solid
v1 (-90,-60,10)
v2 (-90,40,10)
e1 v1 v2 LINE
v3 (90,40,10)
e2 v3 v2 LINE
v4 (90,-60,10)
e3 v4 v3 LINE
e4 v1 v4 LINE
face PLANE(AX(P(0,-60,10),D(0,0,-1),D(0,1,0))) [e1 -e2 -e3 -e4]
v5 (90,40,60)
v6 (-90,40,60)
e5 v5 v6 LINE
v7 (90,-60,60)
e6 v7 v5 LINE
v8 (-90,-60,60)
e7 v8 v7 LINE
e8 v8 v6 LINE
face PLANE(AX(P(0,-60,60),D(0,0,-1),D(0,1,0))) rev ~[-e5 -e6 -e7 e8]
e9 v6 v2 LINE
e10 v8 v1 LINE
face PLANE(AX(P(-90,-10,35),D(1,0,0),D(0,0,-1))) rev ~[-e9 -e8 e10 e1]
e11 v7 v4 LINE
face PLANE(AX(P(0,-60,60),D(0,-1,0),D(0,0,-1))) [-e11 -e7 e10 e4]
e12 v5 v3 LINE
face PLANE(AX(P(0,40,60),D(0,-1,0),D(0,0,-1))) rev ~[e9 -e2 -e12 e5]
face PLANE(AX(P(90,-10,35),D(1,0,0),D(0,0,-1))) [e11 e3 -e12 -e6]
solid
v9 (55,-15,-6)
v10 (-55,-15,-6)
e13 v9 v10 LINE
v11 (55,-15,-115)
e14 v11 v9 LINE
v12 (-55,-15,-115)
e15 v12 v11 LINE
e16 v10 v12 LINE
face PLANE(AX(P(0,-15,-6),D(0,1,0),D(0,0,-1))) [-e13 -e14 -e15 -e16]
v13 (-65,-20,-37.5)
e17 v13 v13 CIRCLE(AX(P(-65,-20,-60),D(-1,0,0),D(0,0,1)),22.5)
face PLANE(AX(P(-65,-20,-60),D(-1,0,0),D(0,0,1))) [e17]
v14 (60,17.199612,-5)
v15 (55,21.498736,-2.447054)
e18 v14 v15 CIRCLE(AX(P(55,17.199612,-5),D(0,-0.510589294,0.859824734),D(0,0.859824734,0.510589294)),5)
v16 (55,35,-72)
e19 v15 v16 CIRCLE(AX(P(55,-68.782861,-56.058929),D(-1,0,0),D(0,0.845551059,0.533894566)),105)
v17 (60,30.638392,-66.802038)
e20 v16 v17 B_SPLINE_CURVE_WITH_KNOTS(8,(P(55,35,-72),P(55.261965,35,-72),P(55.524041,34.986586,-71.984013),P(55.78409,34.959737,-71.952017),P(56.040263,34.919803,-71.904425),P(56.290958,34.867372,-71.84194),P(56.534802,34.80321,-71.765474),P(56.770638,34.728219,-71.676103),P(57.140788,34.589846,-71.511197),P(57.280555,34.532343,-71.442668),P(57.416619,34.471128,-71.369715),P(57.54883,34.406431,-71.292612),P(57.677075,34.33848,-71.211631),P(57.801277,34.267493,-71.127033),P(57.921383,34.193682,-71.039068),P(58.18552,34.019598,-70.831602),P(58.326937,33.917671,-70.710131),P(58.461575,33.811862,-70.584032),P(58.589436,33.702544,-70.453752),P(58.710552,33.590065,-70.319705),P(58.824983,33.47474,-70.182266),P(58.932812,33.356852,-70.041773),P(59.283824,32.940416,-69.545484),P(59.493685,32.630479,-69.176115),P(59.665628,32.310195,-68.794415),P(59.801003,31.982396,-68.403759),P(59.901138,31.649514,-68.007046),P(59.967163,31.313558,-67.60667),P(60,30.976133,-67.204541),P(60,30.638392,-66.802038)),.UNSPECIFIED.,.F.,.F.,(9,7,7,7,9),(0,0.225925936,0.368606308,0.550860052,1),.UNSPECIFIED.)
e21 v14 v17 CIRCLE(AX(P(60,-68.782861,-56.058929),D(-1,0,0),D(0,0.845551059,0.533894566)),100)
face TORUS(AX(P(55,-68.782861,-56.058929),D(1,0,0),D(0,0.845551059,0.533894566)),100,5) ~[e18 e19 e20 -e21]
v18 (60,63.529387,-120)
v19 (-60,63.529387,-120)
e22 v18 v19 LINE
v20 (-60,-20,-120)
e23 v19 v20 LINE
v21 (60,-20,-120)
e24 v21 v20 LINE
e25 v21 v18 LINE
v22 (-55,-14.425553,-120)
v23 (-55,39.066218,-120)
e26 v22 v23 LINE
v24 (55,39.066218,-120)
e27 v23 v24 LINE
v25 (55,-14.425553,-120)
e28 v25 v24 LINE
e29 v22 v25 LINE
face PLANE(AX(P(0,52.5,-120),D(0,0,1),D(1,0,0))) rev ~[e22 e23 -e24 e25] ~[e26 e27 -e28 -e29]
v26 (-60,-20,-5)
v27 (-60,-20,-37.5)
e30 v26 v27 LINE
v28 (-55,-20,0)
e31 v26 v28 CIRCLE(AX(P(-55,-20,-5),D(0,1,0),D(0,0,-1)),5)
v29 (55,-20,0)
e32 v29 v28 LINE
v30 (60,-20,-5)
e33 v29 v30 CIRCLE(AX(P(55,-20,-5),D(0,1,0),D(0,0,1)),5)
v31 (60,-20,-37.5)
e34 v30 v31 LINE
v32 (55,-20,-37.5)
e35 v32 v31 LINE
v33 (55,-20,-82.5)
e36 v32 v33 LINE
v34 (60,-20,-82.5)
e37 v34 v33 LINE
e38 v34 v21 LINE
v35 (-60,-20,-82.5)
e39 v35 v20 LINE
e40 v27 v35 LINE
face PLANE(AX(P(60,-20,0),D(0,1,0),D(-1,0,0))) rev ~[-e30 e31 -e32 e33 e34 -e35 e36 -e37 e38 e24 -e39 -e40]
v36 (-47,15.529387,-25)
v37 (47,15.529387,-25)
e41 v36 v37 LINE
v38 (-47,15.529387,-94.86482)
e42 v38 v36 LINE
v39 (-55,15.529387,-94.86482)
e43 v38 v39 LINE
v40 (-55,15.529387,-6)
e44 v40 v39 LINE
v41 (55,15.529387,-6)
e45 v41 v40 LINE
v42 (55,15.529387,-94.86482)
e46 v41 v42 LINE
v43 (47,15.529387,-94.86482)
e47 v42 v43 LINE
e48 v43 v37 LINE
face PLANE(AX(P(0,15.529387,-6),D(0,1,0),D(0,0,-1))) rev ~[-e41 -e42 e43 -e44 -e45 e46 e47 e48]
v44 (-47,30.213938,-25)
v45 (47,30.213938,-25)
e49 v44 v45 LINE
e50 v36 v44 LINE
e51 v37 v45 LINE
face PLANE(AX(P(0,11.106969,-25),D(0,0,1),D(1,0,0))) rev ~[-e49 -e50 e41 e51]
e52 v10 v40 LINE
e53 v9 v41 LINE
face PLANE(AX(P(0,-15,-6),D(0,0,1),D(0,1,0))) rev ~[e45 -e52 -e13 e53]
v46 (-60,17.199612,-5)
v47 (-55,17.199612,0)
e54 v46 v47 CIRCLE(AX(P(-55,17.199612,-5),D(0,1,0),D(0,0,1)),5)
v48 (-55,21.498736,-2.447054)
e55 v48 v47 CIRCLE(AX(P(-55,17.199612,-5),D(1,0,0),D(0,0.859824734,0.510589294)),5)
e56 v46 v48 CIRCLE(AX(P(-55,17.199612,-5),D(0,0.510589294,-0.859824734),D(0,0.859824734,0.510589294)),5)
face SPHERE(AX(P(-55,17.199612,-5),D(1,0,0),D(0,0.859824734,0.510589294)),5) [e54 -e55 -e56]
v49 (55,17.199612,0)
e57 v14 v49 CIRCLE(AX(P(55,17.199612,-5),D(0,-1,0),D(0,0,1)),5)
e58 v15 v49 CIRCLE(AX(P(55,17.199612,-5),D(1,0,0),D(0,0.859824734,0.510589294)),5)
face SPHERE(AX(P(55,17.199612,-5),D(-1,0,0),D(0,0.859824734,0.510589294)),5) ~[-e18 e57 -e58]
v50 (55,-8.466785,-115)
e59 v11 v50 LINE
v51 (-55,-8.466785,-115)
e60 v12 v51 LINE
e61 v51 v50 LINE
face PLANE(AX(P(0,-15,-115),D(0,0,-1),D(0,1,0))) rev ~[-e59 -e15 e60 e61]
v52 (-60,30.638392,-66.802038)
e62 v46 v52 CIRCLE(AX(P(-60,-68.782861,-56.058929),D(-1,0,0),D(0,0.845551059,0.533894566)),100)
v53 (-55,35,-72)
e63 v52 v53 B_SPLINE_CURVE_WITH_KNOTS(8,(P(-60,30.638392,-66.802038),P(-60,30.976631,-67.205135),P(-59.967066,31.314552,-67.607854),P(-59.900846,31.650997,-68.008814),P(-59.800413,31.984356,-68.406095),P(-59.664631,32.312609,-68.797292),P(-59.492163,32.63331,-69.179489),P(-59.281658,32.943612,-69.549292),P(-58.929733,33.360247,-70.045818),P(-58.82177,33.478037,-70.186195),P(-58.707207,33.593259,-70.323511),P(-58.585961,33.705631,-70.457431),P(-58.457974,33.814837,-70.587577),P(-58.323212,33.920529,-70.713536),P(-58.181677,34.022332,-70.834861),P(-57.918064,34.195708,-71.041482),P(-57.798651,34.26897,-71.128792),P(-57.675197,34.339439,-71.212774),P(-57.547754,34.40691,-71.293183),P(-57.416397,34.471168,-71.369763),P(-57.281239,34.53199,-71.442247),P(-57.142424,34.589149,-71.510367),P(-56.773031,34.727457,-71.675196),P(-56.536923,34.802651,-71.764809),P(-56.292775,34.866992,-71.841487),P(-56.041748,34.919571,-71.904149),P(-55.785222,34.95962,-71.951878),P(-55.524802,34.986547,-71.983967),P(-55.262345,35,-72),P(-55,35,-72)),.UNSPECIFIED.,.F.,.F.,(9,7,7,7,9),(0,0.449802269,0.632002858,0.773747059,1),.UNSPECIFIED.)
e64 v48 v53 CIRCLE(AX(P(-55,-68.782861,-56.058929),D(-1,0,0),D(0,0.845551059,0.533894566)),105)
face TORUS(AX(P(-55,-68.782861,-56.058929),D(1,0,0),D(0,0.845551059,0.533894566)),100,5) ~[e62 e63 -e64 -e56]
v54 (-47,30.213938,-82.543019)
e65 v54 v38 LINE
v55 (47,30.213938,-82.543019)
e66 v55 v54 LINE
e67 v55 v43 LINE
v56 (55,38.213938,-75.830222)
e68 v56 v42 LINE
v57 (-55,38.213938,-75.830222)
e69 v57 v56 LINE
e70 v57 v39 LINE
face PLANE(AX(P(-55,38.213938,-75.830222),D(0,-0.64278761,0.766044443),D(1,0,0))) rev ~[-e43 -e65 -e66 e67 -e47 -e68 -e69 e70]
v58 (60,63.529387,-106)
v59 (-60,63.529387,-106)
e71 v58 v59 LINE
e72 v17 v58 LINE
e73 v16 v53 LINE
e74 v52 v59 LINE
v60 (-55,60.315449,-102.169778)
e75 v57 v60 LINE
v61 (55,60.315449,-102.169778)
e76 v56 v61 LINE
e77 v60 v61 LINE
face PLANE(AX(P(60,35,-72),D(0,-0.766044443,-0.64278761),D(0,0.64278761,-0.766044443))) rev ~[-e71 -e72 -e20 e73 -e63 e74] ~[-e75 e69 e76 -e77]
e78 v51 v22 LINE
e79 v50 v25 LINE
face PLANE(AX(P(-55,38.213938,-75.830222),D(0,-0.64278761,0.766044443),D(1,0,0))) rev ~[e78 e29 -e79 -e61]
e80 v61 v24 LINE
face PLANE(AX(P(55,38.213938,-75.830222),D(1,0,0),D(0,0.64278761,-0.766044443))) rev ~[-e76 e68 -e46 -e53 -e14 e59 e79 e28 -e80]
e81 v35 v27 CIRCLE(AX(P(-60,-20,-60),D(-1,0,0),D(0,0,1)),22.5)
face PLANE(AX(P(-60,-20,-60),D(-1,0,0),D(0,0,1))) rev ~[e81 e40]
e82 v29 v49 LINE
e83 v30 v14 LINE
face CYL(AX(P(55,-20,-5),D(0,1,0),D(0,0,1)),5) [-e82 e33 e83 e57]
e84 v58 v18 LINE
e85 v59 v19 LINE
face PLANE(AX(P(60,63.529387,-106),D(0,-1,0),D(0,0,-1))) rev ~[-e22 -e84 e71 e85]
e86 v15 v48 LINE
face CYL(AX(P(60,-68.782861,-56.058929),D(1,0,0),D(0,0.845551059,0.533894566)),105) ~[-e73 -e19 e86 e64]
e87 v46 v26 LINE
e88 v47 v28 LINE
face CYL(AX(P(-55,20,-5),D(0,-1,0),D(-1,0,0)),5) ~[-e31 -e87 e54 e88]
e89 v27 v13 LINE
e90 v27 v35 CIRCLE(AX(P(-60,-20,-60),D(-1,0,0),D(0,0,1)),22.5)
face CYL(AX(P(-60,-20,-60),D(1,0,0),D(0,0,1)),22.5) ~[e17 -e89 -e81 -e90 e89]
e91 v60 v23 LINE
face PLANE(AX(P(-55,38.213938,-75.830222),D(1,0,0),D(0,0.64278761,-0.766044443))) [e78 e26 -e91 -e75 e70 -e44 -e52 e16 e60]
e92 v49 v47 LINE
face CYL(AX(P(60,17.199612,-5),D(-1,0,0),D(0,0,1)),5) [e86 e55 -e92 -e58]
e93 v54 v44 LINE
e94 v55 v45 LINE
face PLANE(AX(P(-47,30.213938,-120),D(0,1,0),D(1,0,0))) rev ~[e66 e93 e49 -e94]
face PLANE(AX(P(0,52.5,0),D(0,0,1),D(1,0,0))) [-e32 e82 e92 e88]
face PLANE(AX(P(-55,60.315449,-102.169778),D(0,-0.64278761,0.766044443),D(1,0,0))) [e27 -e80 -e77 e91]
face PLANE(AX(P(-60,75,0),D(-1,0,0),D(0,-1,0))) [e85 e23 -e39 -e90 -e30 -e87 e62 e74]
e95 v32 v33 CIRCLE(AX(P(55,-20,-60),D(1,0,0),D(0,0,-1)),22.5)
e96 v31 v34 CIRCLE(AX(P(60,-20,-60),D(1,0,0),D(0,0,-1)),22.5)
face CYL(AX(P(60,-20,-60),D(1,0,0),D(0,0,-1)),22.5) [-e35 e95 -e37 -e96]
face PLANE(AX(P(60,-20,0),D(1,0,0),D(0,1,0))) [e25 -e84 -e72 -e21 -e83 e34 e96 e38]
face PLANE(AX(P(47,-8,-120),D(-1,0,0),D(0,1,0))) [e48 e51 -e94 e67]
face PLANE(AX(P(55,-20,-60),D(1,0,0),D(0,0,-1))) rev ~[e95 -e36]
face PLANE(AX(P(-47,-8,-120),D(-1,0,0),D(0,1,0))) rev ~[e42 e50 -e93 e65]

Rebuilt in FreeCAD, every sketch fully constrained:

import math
import FreeCAD as App
import Part
import Sketcher
Q = App.Units.Quantity


def edges_at(feature, points):
    """Names of the edges that pass closest to the given points."""
    edges = feature.Shape.Edges
    near = lambda p: min(range(len(edges)), key=lambda i: edges[i].distToShape(Part.Vertex(*p))[0])
    return sorted({f"Edge{near(p) + 1}" for p in points})


def add_polygon(sketch, points):
    """Adds a closed chain of lines whose ends are joined by coincident constraints."""
    first, n = sketch.GeometryCount, len(points)
    for a, b in zip(points, points[1:] + points[:1]):
        sketch.addGeometry(Part.LineSegment(App.Vector(*a, 0), App.Vector(*b, 0)), False)
    for i in range(n):
        sketch.addConstraint(Sketcher.Constraint("Coincident", first + i, 2, first + (i + 1) % n, 1))

doc = App.newDocument("Part")
params = doc.addObject("Spreadsheet::Sheet", "Params")
for row, (alias, value) in enumerate([
    ("sketch1_width", "120 mm"),
    ("sketch1_height", "95 mm"),
    ("pad1_length", "120 mm"),
    ("sketch2_radius", "105 mm"),
    ("sketch2_width", "55 mm"),
    ("sketch2_height", "14 mm"),
    ("sketch2_height2", "120 mm"),
    ("pocket1_length", "120 mm"),
    ("sketch3_width", "110 mm"),
    ("pocket2_length", "120 mm"),
    ("sketch4_height", "109 mm"),
    ("pocket3_length", "55 mm"),
    ("pocket3_length2", "55 mm"),
    ("sketch5_width", "94 mm"),
    ("pocket4_length", "95 mm"),
    ("sketch6_diameter", "45 mm"),
    ("pad2_length", "5 mm"),
    ("sketch7_diameter", "45 mm"),
    ("pad3_length", "5 mm"),
    ("fillet_radius", "5 mm"),
    ("sketch8_width", "100 mm"),
    ("sketch8_height", "50 mm"),
    ("pad4_length", "90 mm"),
    ("pad4_length2", "90 mm"),
], start=1):
    params.set(f"A{row}", alias)
    params.set(f"B{row}", "=" + value)
    params.setAlias(f"B{row}", alias)

body = doc.addObject("PartDesign::Body", "Body")

# Sketch on XY plane
sketch1 = body.newObject("Sketcher::SketchObject", "Sketch")
sketch1.AttachmentSupport = (doc.getObject("XY_Plane"), [""])
sketch1.MapMode = "FlatFace"
add_polygon(sketch1, [(-60, 75), (-60, -20), (60, -20), (60, 75)])  # lines 0-3
sketch1.addConstraint([
    Sketcher.Constraint("Vertical", 0),
    Sketcher.Constraint("Horizontal", 1),
    Sketcher.Constraint("Vertical", 2),
    Sketcher.Constraint("Horizontal", 3),
    Sketcher.Constraint("DistanceX", 1, 1, 1, 2, Q("120 mm")),
    Sketcher.Constraint("DistanceY", 0, 2, 0, 1, Q("95 mm")),
    Sketcher.Constraint("DistanceX", 0, 2, -1, 1, Q("60 mm")),
    Sketcher.Constraint("DistanceY", 0, 2, -1, 1, Q("20 mm")),
])
sketch1.setExpression("Constraints[8]", "Params.sketch1_width")
sketch1.setExpression("Constraints[9]", "Params.sketch1_height")
pad1 = body.newObject("PartDesign::Pad", "Pad")
pad1.Profile = sketch1
pad1.setExpression("Length", "Params.pad1_length")
pad1.Reversed = True

# Sketch on YZ plane
sketch2 = body.newObject("Sketcher::SketchObject", "Sketch001")
sketch2.AttachmentSupport = (doc.getObject("YZ_Plane"), [""])
sketch2.MapMode = "FlatFace"
sketch2.AttachmentOffset = App.Placement(App.Vector(0, 0, 60), App.Rotation())
sketch2.addGeometry([
    Part.LineSegment(App.Vector(75, 0, 0), App.Vector(20, 0, 0)),  # 0
    Part.ArcOfCircle(Part.Circle(App.Vector(-69, -56, 0), App.Vector(0, 0, 1), 105), math.radians(-9), math.radians(32)),  # 1
    Part.LineSegment(App.Vector(35, -72, 0), App.Vector(64, -106, 0)),  # 2
    Part.LineSegment(App.Vector(64, -106, 0), App.Vector(64, -120, 0)),  # 3
    Part.LineSegment(App.Vector(64, -120, 0), App.Vector(75, -120, 0)),  # 4
    Part.LineSegment(App.Vector(75, -120, 0), App.Vector(75, 0, 0)),  # 5
], False)
sketch2.addConstraint([
    Sketcher.Constraint("Coincident", 0, 2, 1, 2),
    Sketcher.Constraint("Coincident", 1, 1, 2, 1),
    Sketcher.Constraint("Coincident", 2, 2, 3, 1),
    Sketcher.Constraint("Coincident", 3, 2, 4, 1),
    Sketcher.Constraint("Coincident", 4, 2, 5, 1),
    Sketcher.Constraint("Coincident", 5, 2, 0, 1),
    Sketcher.Constraint("Horizontal", 0),
    Sketcher.Constraint("Vertical", 3),
    Sketcher.Constraint("Horizontal", 4),
    Sketcher.Constraint("Vertical", 5),
    Sketcher.Constraint("PointOnObject", 0, 2, -1),
    Sketcher.Constraint("Radius", 1, Q("105 mm")),
    Sketcher.Constraint("DistanceX", 0, 2, 0, 1, Q("55 mm")),
    Sketcher.Constraint("DistanceY", 3, 2, 3, 1, Q("14 mm")),
    Sketcher.Constraint("DistanceY", 5, 1, 5, 2, Q("120 mm")),
    Sketcher.Constraint("Angle", 2, Q("-50 deg")),
    Sketcher.Constraint("DistanceX", -1, 1, 0, 2, Q("20 mm")),
    Sketcher.Constraint("DistanceX", -1, 1, 1, 1, Q("35 mm")),
    Sketcher.Constraint("DistanceY", 1, 1, -1, 1, Q("72 mm")),
])
sketch2.setExpression("Constraints[11]", "Params.sketch2_radius")
sketch2.setExpression("Constraints[12]", "Params.sketch2_width")
sketch2.setExpression("Constraints[13]", "Params.sketch2_height")
sketch2.setExpression("Constraints[14]", "Params.sketch2_height2")
pocket1 = body.newObject("PartDesign::Pocket", "Pocket")
pocket1.Profile = sketch2
pocket1.setExpression("Length", "Params.pocket1_length")

# Sketch on an angled plane
sketch3 = body.newObject("Sketcher::SketchObject", "Sketch002")
sketch3.Placement = App.Placement(App.Vector(0, -14.914236, -12.51453), App.Rotation(App.Vector(1, 0, 0), App.Vector(0, 0.64278761, -0.766044443), App.Vector(0, 0.766044443, 0.64278761), "ZXY"))
add_polygon(sketch3, [(-55, 117), (-55, 83), (55, 83), (55, 117)])  # lines 0-3
sketch3.addConstraint([
    Sketcher.Constraint("Vertical", 0),
    Sketcher.Constraint("Horizontal", 1),
    Sketcher.Constraint("Vertical", 2),
    Sketcher.Constraint("Horizontal", 3),
    Sketcher.Constraint("DistanceX", 1, 1, 1, 2, Q("110 mm")),
    Sketcher.Constraint("DistanceX", 0, 2, -1, 1, Q("55 mm")),
    Sketcher.Constraint("DistanceY", 0, 2, 0, 1, Q("34.383848 mm")),
    Sketcher.Constraint("DistanceY", -1, 1, 0, 2, Q("82.652766 mm")),
])
sketch3.setExpression("Constraints[8]", "Params.sketch3_width")
pocket2 = body.newObject("PartDesign::Pocket", "Pocket001")
pocket2.Profile = sketch3
pocket2.setExpression("Length", "Params.pocket2_length")

# Sketch on YZ plane
sketch4 = body.newObject("Sketcher::SketchObject", "Sketch003")
sketch4.AttachmentSupport = (doc.getObject("YZ_Plane"), [""])
sketch4.MapMode = "FlatFace"
add_polygon(sketch4, [(16, -6), (-15, -6), (-15, -115), (16, -115)])  # lines 0-3
sketch4.addConstraint([
    Sketcher.Constraint("Horizontal", 0),
    Sketcher.Constraint("Vertical", 1),
    Sketcher.Constraint("Horizontal", 2),
    Sketcher.Constraint("Vertical", 3),
    Sketcher.Constraint("DistanceY", 1, 2, 1, 1, Q("109 mm")),
    Sketcher.Constraint("DistanceX", 0, 2, -1, 1, Q("15 mm")),
    Sketcher.Constraint("DistanceY", 0, 2, -1, 1, Q("6 mm")),
    Sketcher.Constraint("DistanceX", 0, 2, 0, 1, Q("30.529387 mm")),
])
sketch4.setExpression("Constraints[8]", "Params.sketch4_height")
pocket3 = body.newObject("PartDesign::Pocket", "Pocket002")
pocket3.Profile = sketch4
pocket3.Type = "TwoLengths"
pocket3.setExpression("Length", "Params.pocket3_length")
pocket3.setExpression("Length2", "Params.pocket3_length2")
pocket3.Reversed = True

# Sketch on XY plane
sketch5 = body.newObject("Sketcher::SketchObject", "Sketch004")
sketch5.AttachmentSupport = (doc.getObject("XY_Plane"), [""])
sketch5.MapMode = "FlatFace"
sketch5.AttachmentOffset = App.Placement(App.Vector(0, 0, -120), App.Rotation())
add_polygon(sketch5, [(-47, 30), (-47, -8), (47, -8), (47, 30)])  # lines 0-3
sketch5.addConstraint([
    Sketcher.Constraint("Vertical", 0),
    Sketcher.Constraint("Horizontal", 1),
    Sketcher.Constraint("Vertical", 2),
    Sketcher.Constraint("Horizontal", 3),
    Sketcher.Constraint("DistanceX", 1, 1, 1, 2, Q("94 mm")),
    Sketcher.Constraint("DistanceX", 0, 2, -1, 1, Q("47 mm")),
    Sketcher.Constraint("DistanceY", 0, 2, -1, 1, Q("8 mm")),
    Sketcher.Constraint("DistanceY", 0, 2, 0, 1, Q("38.213938 mm")),
])
sketch5.setExpression("Constraints[8]", "Params.sketch5_width")
pocket4 = body.newObject("PartDesign::Pocket", "Pocket003")
pocket4.Profile = sketch5
pocket4.setExpression("Length", "Params.pocket4_length")
pocket4.Reversed = True

# Sketch on YZ plane
sketch6 = body.newObject("Sketcher::SketchObject", "Sketch005")
sketch6.AttachmentSupport = (doc.getObject("YZ_Plane"), [""])
sketch6.MapMode = "FlatFace"
sketch6.AttachmentOffset = App.Placement(App.Vector(0, 0, 60), App.Rotation())
sketch6.addGeometry(Part.Circle(App.Vector(-20, -60, 0), App.Vector(0, 0, 1), 22), False)
sketch6.addConstraint([
    Sketcher.Constraint("Diameter", 0, Q("45 mm")),
    Sketcher.Constraint("DistanceX", 0, 3, -1, 1, Q("20 mm")),
    Sketcher.Constraint("DistanceY", 0, 3, -1, 1, Q("60 mm")),
])
sketch6.setExpression("Constraints[0]", "Params.sketch6_diameter")
pad2 = body.newObject("PartDesign::Pad", "Pad001")
pad2.Profile = sketch6
pad2.setExpression("Length", "Params.pad2_length")
pad2.Reversed = True

# Sketch on YZ plane
sketch7 = body.newObject("Sketcher::SketchObject", "Sketch006")
sketch7.AttachmentSupport = (doc.getObject("YZ_Plane"), [""])
sketch7.MapMode = "FlatFace"
sketch7.AttachmentOffset = App.Placement(App.Vector(0, 0, -60), App.Rotation())
sketch7.addGeometry(Part.Circle(App.Vector(-20, -60, 0), App.Vector(0, 0, 1), 22), False)
sketch7.addConstraint([
    Sketcher.Constraint("Diameter", 0, Q("45 mm")),
    Sketcher.Constraint("DistanceX", 0, 3, -1, 1, Q("20 mm")),
    Sketcher.Constraint("DistanceY", 0, 3, -1, 1, Q("60 mm")),
])
sketch7.setExpression("Constraints[0]", "Params.sketch7_diameter")
pad3 = body.newObject("PartDesign::Pad", "Pad002")
pad3.Profile = sketch7
pad3.setExpression("Length", "Params.pad3_length")
pad3.Reversed = True
doc.recompute()

fillet = body.newObject("PartDesign::Fillet", "Fillet")
fillet.Base = (pad3, edges_at(pad3, [
    (60, 0, 0),
    (0, 20, 0),
    (-60, 34.01, -34.644),
    (60, 34.01, -34.644),
    (-60, 0, 0),
]))
fillet.setExpression("Radius", "Params.fillet_radius")
body2 = doc.addObject("PartDesign::Body", "Body001")

# Sketch on YZ plane
sketch8 = body2.newObject("Sketcher::SketchObject", "Sketch007")
sketch8.AttachmentSupport = (doc.getObject("YZ_Plane001"), [""])
sketch8.MapMode = "FlatFace"
add_polygon(sketch8, [(40, 60), (-60, 60), (-60, 10), (40, 10)])  # lines 0-3
sketch8.addConstraint([
    Sketcher.Constraint("Horizontal", 0),
    Sketcher.Constraint("Vertical", 1),
    Sketcher.Constraint("Horizontal", 2),
    Sketcher.Constraint("Vertical", 3),
    Sketcher.Constraint("DistanceX", 0, 2, 0, 1, Q("100 mm")),
    Sketcher.Constraint("DistanceY", 1, 2, 1, 1, Q("50 mm")),
    Sketcher.Constraint("DistanceX", 0, 2, -1, 1, Q("60 mm")),
    Sketcher.Constraint("DistanceY", -1, 1, 0, 2, Q("60 mm")),
])
sketch8.setExpression("Constraints[8]", "Params.sketch8_width")
sketch8.setExpression("Constraints[9]", "Params.sketch8_height")
pad4 = body2.newObject("PartDesign::Pad", "Pad003")
pad4.Profile = sketch8
pad4.Type = "TwoLengths"
pad4.setExpression("Length", "Params.pad4_length")
pad4.setExpression("Length2", "Params.pad4_length2")

doc.recompute()
